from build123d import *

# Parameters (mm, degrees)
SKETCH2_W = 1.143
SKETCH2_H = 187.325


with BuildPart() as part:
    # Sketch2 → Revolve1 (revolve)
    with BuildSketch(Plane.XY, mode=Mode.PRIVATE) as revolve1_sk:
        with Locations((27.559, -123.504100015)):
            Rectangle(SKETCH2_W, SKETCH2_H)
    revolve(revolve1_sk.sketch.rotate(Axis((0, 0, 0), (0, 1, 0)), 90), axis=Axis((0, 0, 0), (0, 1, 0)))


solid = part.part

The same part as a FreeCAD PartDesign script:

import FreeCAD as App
import Part
import Sketcher

V = App.Vector
Q = App.Units.Quantity

doc = App.newDocument("Part")
body = doc.addObject("PartDesign::Body", "Body")

# Sketch on XY plane
sketch1 = doc.addObject("Sketcher::SketchObject", "Sketch")
body.addObject(sketch1)
sketch1.AttachmentSupport = (doc.XY_Plane, [""])
sketch1.MapMode = "FlatFace"
sketch1.addGeometry(Part.LineSegment(V(26.9875, -29.8416, 0), V(26.9875, -217.1666, 0)), False)
sketch1.addGeometry(Part.LineSegment(V(26.9875, -217.1666, 0), V(28.1305, -217.1666, 0)), False)
sketch1.addGeometry(Part.LineSegment(V(28.1305, -217.1666, 0), V(28.1305, -29.8416, 0)), False)
sketch1.addGeometry(Part.LineSegment(V(28.1305, -29.8416, 0), V(26.9875, -29.8416, 0)), False)
sketch1.addConstraint(Sketcher.Constraint("Coincident", 0, 2, 1, 1))
sketch1.addConstraint(Sketcher.Constraint("Coincident", 1, 2, 2, 1))
sketch1.addConstraint(Sketcher.Constraint("Coincident", 2, 2, 3, 1))
sketch1.addConstraint(Sketcher.Constraint("Coincident", 3, 2, 0, 1))
sketch1.addConstraint(Sketcher.Constraint("Vertical", 0))
sketch1.addConstraint(Sketcher.Constraint("Horizontal", 1))
sketch1.addConstraint(Sketcher.Constraint("Vertical", 2))
sketch1.addConstraint(Sketcher.Constraint("Horizontal", 3))
sketch1.addConstraint(Sketcher.Constraint("DistanceX", 1, 1, 1, 2, Q("0.045 in")))
sketch1.addConstraint(Sketcher.Constraint("DistanceY", 0, 2, 0, 1, Q("7.375 in")))
sketch1.addConstraint(Sketcher.Constraint("DistanceX", -1, 1, 0, 2, Q("1.0625 in")))
sketch1.addConstraint(Sketcher.Constraint("DistanceY", 0, 2, -1, 1, 217.1666))
revolution = doc.addObject("PartDesign::Revolution", "Revolution")
body.addObject(revolution)
revolution.Profile = sketch1
revolution.ReferenceAxis = (sketch1, ["V_Axis"])
revolution.Angle = 360

doc.recompute()
